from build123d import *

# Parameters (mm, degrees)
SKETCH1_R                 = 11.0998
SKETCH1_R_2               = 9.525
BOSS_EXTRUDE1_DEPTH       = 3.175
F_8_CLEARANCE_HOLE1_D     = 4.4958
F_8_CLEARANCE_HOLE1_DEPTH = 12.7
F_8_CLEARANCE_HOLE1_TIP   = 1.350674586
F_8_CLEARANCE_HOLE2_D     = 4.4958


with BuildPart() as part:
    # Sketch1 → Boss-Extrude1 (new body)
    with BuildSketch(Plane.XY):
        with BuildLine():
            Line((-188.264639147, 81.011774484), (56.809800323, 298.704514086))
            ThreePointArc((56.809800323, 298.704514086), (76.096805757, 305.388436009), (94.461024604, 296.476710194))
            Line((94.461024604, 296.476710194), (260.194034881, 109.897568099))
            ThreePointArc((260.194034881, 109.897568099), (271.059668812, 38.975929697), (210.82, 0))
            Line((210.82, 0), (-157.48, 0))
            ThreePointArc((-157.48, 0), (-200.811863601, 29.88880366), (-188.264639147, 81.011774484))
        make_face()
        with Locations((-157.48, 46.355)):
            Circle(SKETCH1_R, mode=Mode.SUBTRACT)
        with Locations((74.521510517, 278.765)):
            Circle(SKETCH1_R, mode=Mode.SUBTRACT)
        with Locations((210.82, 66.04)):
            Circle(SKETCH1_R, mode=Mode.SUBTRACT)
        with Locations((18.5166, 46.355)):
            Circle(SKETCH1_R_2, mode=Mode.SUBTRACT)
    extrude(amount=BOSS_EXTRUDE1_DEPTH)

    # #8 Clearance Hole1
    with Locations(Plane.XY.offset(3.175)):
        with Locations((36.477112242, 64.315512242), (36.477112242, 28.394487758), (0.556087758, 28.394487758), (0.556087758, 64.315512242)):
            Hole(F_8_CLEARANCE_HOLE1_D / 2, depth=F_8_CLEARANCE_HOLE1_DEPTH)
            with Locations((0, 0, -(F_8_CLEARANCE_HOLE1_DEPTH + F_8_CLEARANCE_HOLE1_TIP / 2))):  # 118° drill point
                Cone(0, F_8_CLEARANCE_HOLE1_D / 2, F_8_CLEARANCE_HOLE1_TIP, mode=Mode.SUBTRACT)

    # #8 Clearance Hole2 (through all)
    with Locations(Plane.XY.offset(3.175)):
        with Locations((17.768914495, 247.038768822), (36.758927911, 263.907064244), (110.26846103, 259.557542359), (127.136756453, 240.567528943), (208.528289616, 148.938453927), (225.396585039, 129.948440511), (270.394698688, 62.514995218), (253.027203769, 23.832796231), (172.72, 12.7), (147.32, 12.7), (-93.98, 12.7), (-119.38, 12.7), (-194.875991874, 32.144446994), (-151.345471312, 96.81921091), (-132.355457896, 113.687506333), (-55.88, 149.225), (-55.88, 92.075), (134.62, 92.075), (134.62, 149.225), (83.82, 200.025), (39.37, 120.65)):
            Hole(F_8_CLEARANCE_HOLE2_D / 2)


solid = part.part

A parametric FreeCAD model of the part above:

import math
import FreeCAD as App
import Part
import Sketcher

V = App.Vector
Q = App.Units.Quantity

doc = App.newDocument("Part")
params = doc.addObject("Spreadsheet::Sheet", "Params")
for row, (alias, value) in enumerate([
    ("sketch1_radius", "2.6 in"),
    ("sketch1_diameter", "0.75 in"),
    ("sketch1_radius2", "1.05 in"),
    ("sketch1_diameter2", "0.874 in"),
    ("sketch1_width", "14.5 in"),
    ("pad1_length", "0.125 in"),
    ("sketch2_diameter", "0.177 in"),
    ("hole_diameter", "0.177 in"),
    ("hole_depth", "0.5 in"),
    ("sketch3_diameter", "0.177 in"),
    ("hole2_diameter", "0.177 in"),
], start=1):
    params.set(f"A{row}", alias)
    params.set(f"B{row}", "=" + value)
    params.setAlias(f"B{row}", alias)

body = doc.addObject("PartDesign::Body", "Body")

# Sketch on XY plane
sketch1 = body.newObject("Sketcher::SketchObject", "Sketch")
sketch1.AttachmentSupport = (doc.getObject("XY_Plane"), [""])
sketch1.MapMode = "FlatFace"
sketch1.addGeometry(Part.LineSegment(V(56.8098, 298.704514, 0), V(-188.264639, 81.011774, 0)), False)
sketch1.addGeometry(Part.ArcOfCircle(Part.Circle(V(-157.48, 46.355, 0), V(0, 0, 1), 46.355), math.radians(131.613786), math.radians(270)), False)
sketch1.addGeometry(Part.LineSegment(V(-157.48, 0, 0), V(210.82, 0, 0)), False)
sketch1.addGeometry(Part.ArcOfCircle(Part.Circle(V(210.82, 66.04, 0), V(0, 0, 1), 66.04), math.radians(-90), math.radians(41.613786)), False)
sketch1.addGeometry(Part.LineSegment(V(260.194035, 109.897568, 0), V(94.461025, 296.47671, 0)), False)
sketch1.addGeometry(Part.ArcOfCircle(Part.Circle(V(74.521511, 278.765, 0), V(0, 0, 1), 26.67), math.radians(41.613786), math.radians(131.613786)), False)
sketch1.addGeometry(Part.Circle(V(210.82, 66.04, 0), V(0, 0, 1), 11.0998), False)
sketch1.addGeometry(Part.Circle(V(18.5166, 46.355, 0), V(0, 0, 1), 9.525), False)
sketch1.addGeometry(Part.Circle(V(-157.48, 46.355, 0), V(0, 0, 1), 11.0998), False)
sketch1.addGeometry(Part.Circle(V(74.521511, 278.765, 0), V(0, 0, 1), 11.0998), False)
sketch1.addConstraint(Sketcher.Constraint("Tangent", 0, 2, 1, 1))
sketch1.addConstraint(Sketcher.Constraint("Tangent", 1, 2, 2, 1))
sketch1.addConstraint(Sketcher.Constraint("Tangent", 2, 2, 3, 1))
sketch1.addConstraint(Sketcher.Constraint("Tangent", 3, 2, 4, 1))
sketch1.addConstraint(Sketcher.Constraint("Tangent", 4, 2, 5, 1))
sketch1.addConstraint(Sketcher.Constraint("Tangent", 5, 2, 0, 1))
sketch1.addConstraint(Sketcher.Constraint("Horizontal", 2))
sketch1.addConstraint(Sketcher.Constraint("Coincident", 6, 3, 3, 3))
sketch1.addConstraint(Sketcher.Constraint("Coincident", 8, 3, 1, 3))
sketch1.addConstraint(Sketcher.Constraint("Coincident", 9, 3, 5, 3))
sketch1.addConstraint(Sketcher.Constraint("Equal", 6, 8))
sketch1.addConstraint(Sketcher.Constraint("Equal", 8, 9))
sketch1.addConstraint(Sketcher.Constraint("PointOnObject", 1, 2, -1))
sketch1.addConstraint(Sketcher.Constraint("Perpendicular", 0, 4))
sketch1.addConstraint(Sketcher.Constraint("Horizontal", 1, 3, 7, 3))
sketch1.addConstraint(Sketcher.Constraint("Radius", 3, Q("2.6 in")))
sketch1.addConstraint(Sketcher.Constraint("Diameter", 7, Q("0.75 in")))
sketch1.addConstraint(Sketcher.Constraint("Radius", 5, Q("1.05 in")))
sketch1.addConstraint(Sketcher.Constraint("Diameter", 6, Q("0.874 in")))
sketch1.addConstraint(Sketcher.Constraint("DistanceX", 2, 1, 2, 2, Q("14.5 in")))
sketch1.addConstraint(Sketcher.Constraint("Radius", 1, Q("1.825 in")))
sketch1.addConstraint(Sketcher.Constraint("DistanceX", 1, 3, -1, 1, Q("6.2 in")))
sketch1.addConstraint(Sketcher.Constraint("DistanceY", 1, 3, 5, 3, Q("9.15 in")))
sketch1.addConstraint(Sketcher.Constraint("DistanceX", -1, 1, 7, 3, Q("0.729 in")))
sketch1.setExpression("Constraints[15]", "Params.sketch1_radius")
sketch1.setExpression("Constraints[16]", "Params.sketch1_diameter")
sketch1.setExpression("Constraints[17]", "Params.sketch1_radius2")
sketch1.setExpression("Constraints[18]", "Params.sketch1_diameter2")
sketch1.setExpression("Constraints[19]", "Params.sketch1_width")
pad1 = body.newObject("PartDesign::Pad", "Pad")
pad1.Profile = sketch1
pad1.setExpression("Length", "Params.pad1_length")

# Sketch on XY plane
sketch2 = body.newObject("Sketcher::SketchObject", "Sketch001")
sketch2.AttachmentSupport = (doc.getObject("XY_Plane"), [""])
sketch2.MapMode = "FlatFace"
sketch2.AttachmentOffset = App.Placement(V(0, 0, 0.125 * 25.4), App.Rotation())
sketch2.addGeometry(Part.Circle(V(36.477112, 64.315512, 0), V(0, 0, 1), 2.2479), False)
sketch2.addGeometry(Part.Circle(V(36.477112, 28.394488, 0), V(0, 0, 1), 2.2479), False)
sketch2.addGeometry(Part.Circle(V(0.556088, 28.394488, 0), V(0, 0, 1), 2.2479), False)
sketch2.addGeometry(Part.Circle(V(0.556088, 64.315512, 0), V(0, 0, 1), 2.2479), False)
sketch2.addConstraint(Sketcher.Constraint("Equal", 0, 1))
sketch2.addConstraint(Sketcher.Constraint("Equal", 1, 2))
sketch2.addConstraint(Sketcher.Constraint("Equal", 2, 3))
sketch2.addConstraint(Sketcher.Constraint("Horizontal", 1, 3, 2, 3))
sketch2.addConstraint(Sketcher.Constraint("Horizontal", 0, 3, 3, 3))
sketch2.addConstraint(Sketcher.Constraint("Vertical", 0, 3, 1, 3))
sketch2.addConstraint(Sketcher.Constraint("Vertical", 2, 3, 3, 3))
sketch2.addConstraint(Sketcher.Constraint("Diameter", 0, Q("0.177 in")))
sketch2.addConstraint(Sketcher.Constraint("DistanceX", -1, 1, 0, 3, Q("36.477112 mm")))
sketch2.addConstraint(Sketcher.Constraint("DistanceY", -1, 1, 0, 3, Q("64.315512 mm")))
sketch2.addConstraint(Sketcher.Constraint("DistanceY", -1, 1, 1, 3, Q("28.394488 mm")))
sketch2.addConstraint(Sketcher.Constraint("DistanceX", -1, 1, 2, 3, Q("0.556088 mm")))
sketch2.setExpression("Constraints[7]", "Params.sketch2_diameter")
doc.recompute()
hole = body.newObject("PartDesign::Hole", "Hole")
hole.Profile = sketch2
hole.ThreadType = "None"
hole.setExpression("Diameter", "Params.hole_diameter")
hole.DepthType = "Dimension"
hole.setExpression("Depth", "Params.hole_depth")
hole.DrillPoint = "Angled"
hole.DrillPointAngle = 118

# Sketch on XY plane
sketch3 = body.newObject("Sketcher::SketchObject", "Sketch002")
sketch3.AttachmentSupport = (doc.getObject("XY_Plane"), [""])
sketch3.MapMode = "FlatFace"
sketch3.AttachmentOffset = App.Placement(V(0, 0, 0.125 * 25.4), App.Rotation())
sketch3.addGeometry(Part.Circle(V(17.768914, 247.038769, 0), V(0, 0, 1), 2.2479), False)
sketch3.addGeometry(Part.Circle(V(36.758928, 263.907064, 0), V(0, 0, 1), 2.2479), False)
sketch3.addGeometry(Part.Circle(V(110.268461, 259.557542, 0), V(0, 0, 1), 2.2479), False)
sketch3.addGeometry(Part.Circle(V(127.136756, 240.567529, 0), V(0, 0, 1), 2.2479), False)
sketch3.addGeometry(Part.Circle(V(208.52829, 148.938454, 0), V(0, 0, 1), 2.2479), False)
sketch3.addGeometry(Part.Circle(V(225.396585, 129.948441, 0), V(0, 0, 1), 2.2479), False)
sketch3.addGeometry(Part.Circle(V(270.394699, 62.514995, 0), V(0, 0, 1), 2.2479), False)
sketch3.addGeometry(Part.Circle(V(253.027204, 23.832796, 0), V(0, 0, 1), 2.2479), False)
sketch3.addGeometry(Part.Circle(V(172.72, 12.7, 0), V(0, 0, 1), 2.2479), False)
sketch3.addGeometry(Part.Circle(V(147.32, 12.7, 0), V(0, 0, 1), 2.2479), False)
sketch3.addGeometry(Part.Circle(V(-93.98, 12.7, 0), V(0, 0, 1), 2.2479), False)
sketch3.addGeometry(Part.Circle(V(-119.38, 12.7, 0), V(0, 0, 1), 2.2479), False)
sketch3.addGeometry(Part.Circle(V(-194.875992, 32.144447, 0), V(0, 0, 1), 2.2479), False)
sketch3.addGeometry(Part.Circle(V(-151.345471, 96.819211, 0), V(0, 0, 1), 2.2479), False)
sketch3.addGeometry(Part.Circle(V(-132.355458, 113.687506, 0), V(0, 0, 1), 2.2479), False)
sketch3.addGeometry(Part.Circle(V(-55.88, 149.225, 0), V(0, 0, 1), 2.2479), False)
sketch3.addGeometry(Part.Circle(V(-55.88, 92.075, 0), V(0, 0, 1), 2.2479), False)
sketch3.addGeometry(Part.Circle(V(134.62, 92.075, 0), V(0, 0, 1), 2.2479), False)
sketch3.addGeometry(Part.Circle(V(134.62, 149.225, 0), V(0, 0, 1), 2.2479), False)
sketch3.addGeometry(Part.Circle(V(83.82, 200.025, 0), V(0, 0, 1), 2.2479), False)
sketch3.addGeometry(Part.Circle(V(39.37, 120.65, 0), V(0, 0, 1), 2.2479), False)
sketch3.addConstraint(Sketcher.Constraint("Equal", 0, 1))
sketch3.addConstraint(Sketcher.Constraint("Equal", 1, 2))
sketch3.addConstraint(Sketcher.Constraint("Equal", 2, 3))
sketch3.addConstraint(Sketcher.Constraint("Equal", 3, 4))
sketch3.addConstraint(Sketcher.Constraint("Equal", 4, 5))
sketch3.addConstraint(Sketcher.Constraint("Equal", 5, 6))
sketch3.addConstraint(Sketcher.Constraint("Equal", 6, 7))
sketch3.addConstraint(Sketcher.Constraint("Equal", 7, 8))
sketch3.addConstraint(Sketcher.Constraint("Equal", 8, 9))
sketch3.addConstraint(Sketcher.Constraint("Equal", 9, 10))
sketch3.addConstraint(Sketcher.Constraint("Equal", 10, 11))
sketch3.addConstraint(Sketcher.Constraint("Equal", 11, 12))
sketch3.addConstraint(Sketcher.Constraint("Equal", 12, 13))
sketch3.addConstraint(Sketcher.Constraint("Equal", 13, 14))
sketch3.addConstraint(Sketcher.Constraint("Equal", 14, 15))
sketch3.addConstraint(Sketcher.Constraint("Equal", 15, 16))
sketch3.addConstraint(Sketcher.Constraint("Equal", 16, 17))
sketch3.addConstraint(Sketcher.Constraint("Equal", 17, 18))
sketch3.addConstraint(Sketcher.Constraint("Equal", 18, 19))
sketch3.addConstraint(Sketcher.Constraint("Equal", 19, 20))
sketch3.addConstraint(Sketcher.Constraint("Horizontal", 8, 3, 9, 3))
sketch3.addConstraint(Sketcher.Constraint("Horizontal", 9, 3, 10, 3))
sketch3.addConstraint(Sketcher.Constraint("Horizontal", 10, 3, 11, 3))
sketch3.addConstraint(Sketcher.Constraint("Horizontal", 16, 3, 17, 3))
sketch3.addConstraint(Sketcher.Constraint("Horizontal", 15, 3, 18, 3))
sketch3.addConstraint(Sketcher.Constraint("Vertical", 15, 3, 16, 3))
sketch3.addConstraint(Sketcher.Constraint("Vertical", 17, 3, 18, 3))
sketch3.addConstraint(Sketcher.Constraint("Diameter", 0, Q("0.177 in")))
sketch3.addConstraint(Sketcher.Constraint("DistanceX", 9, 3, 8, 3, Q("1 in")))
sketch3.addConstraint(Sketcher.Constraint("DistanceX", 11, 3, 10, 3, Q("1 in")))
sketch3.addConstraint(Sketcher.Constraint("DistanceX", 19, 3, 18, 3, Q("2 in")))
sketch3.addConstraint(Sketcher.Constraint("DistanceY", 18, 3, 19, 3, Q("2 in")))
sketch3.addConstraint(Sketcher.Constraint("DistanceX", -1, 1, 8, 3, Q("6.8 in")))
sketch3.addConstraint(Sketcher.Constraint("DistanceY", -1, 1, 8, 3, Q("0.5 in")))
sketch3.addConstraint(Sketcher.Constraint("DistanceX", 10, 3, -1, 1, Q("3.7 in")))
sketch3.addConstraint(Sketcher.Constraint("DistanceX", 15, 3, -1, 1, Q("2.2 in")))
sketch3.addConstraint(Sketcher.Constraint("DistanceX", -1, 1, 17, 3, Q("5.3 in")))
sketch3.addConstraint(Sketcher.Constraint("DistanceX", -1, 1, 20, 3, Q("1.55 in")))
sketch3.addConstraint(Sketcher.Constraint("DistanceY", -1, 1, 20, 3, Q("4.75 in")))
sketch3.addConstraint(Sketcher.Constraint("DistanceY", 16, 3, 15, 3, Q("2.25 in")))
sketch3.addConstraint(Sketcher.Constraint("DistanceY", -1, 1, 15, 3, Q("5.875 in")))
sketch3.addConstraint(Sketcher.Constraint("DistanceX", 12, 3, 13, 3, Q("1.7138 in")))
sketch3.addConstraint(Sketcher.Constraint("DistanceX", -1, 1, 6, 3, Q("270.394699 mm")))
sketch3.addConstraint(Sketcher.Constraint("DistanceY", 5, 3, 2, 3, Q("129.609102 mm")))
sketch3.addConstraint(Sketcher.Constraint("DistanceY", 7, 3, 6, 3, Q("38.682199 mm")))
sketch3.addConstraint(Sketcher.Constraint("DistanceX", 13, 3, 1, 3, Q("188.104399 mm")))
sketch3.addConstraint(Sketcher.Constraint("DistanceY", -1, 1, 0, 3, Q("247.038769 mm")))
sketch3.addConstraint(Sketcher.Constraint("DistanceX", -1, 1, 2, 3, Q("110.268461 mm")))
sketch3.addConstraint(Sketcher.Constraint("DistanceY", -1, 1, 3, 3, Q("240.567529 mm")))
sketch3.addConstraint(Sketcher.Constraint("DistanceX", -1, 1, 4, 3, Q("208.52829 mm")))
sketch3.addConstraint(Sketcher.Constraint("DistanceY", -1, 1, 5, 3, Q("129.948441 mm")))
sketch3.addConstraint(Sketcher.Constraint("DistanceX", 12, 3, -1, 1, Q("194.875992 mm")))
sketch3.addConstraint(Sketcher.Constraint("DistanceY", -1, 1, 13, 3, Q("96.819211 mm")))
sketch3.addConstraint(Sketcher.Constraint("DistanceY", 2, 3, 1, 3, Q("4.349522 mm")))
sketch3.addConstraint(Sketcher.Constraint("DistanceX", 1, 3, 3, 3, Q("90.377829 mm")))
sketch3.addConstraint(Sketcher.Constraint("DistanceX", 0, 3, 3, 3, Q("109.367842 mm")))
sketch3.addConstraint(Sketcher.Constraint("DistanceY", 4, 3, 2, 3, Q("110.619088 mm")))
sketch3.addConstraint(Sketcher.Constraint("DistanceX", 3, 3, 5, 3, Q("98.259829 mm")))
sketch3.addConstraint(Sketcher.Constraint("DistanceY", 6, 3, 4, 3, Q("86.423459 mm")))
sketch3.addConstraint(Sketcher.Constraint("DistanceX", 5, 3, 7, 3, Q("27.630619 mm")))
sketch3.addConstraint(Sketcher.Constraint("DistanceY", 12, 3, 0, 3, Q("214.894322 mm")))
sketch3.addConstraint(Sketcher.Constraint("DistanceY", 12, 3, 14, 3, Q("81.543059 mm")))
sketch3.addConstraint(Sketcher.Constraint("DistanceX", 14, 3, -1, 1, Q("132.355458 mm")))
sketch3.setExpression("Constraints[27]", "Params.sketch3_diameter")
doc.recompute()
hole2 = body.newObject("PartDesign::Hole", "Hole001")
hole2.Profile = sketch3
hole2.ThreadType = "None"
hole2.setExpression("Diameter", "Params.hole2_diameter")
hole2.DepthType = "ThroughAll"

doc.recompute()
